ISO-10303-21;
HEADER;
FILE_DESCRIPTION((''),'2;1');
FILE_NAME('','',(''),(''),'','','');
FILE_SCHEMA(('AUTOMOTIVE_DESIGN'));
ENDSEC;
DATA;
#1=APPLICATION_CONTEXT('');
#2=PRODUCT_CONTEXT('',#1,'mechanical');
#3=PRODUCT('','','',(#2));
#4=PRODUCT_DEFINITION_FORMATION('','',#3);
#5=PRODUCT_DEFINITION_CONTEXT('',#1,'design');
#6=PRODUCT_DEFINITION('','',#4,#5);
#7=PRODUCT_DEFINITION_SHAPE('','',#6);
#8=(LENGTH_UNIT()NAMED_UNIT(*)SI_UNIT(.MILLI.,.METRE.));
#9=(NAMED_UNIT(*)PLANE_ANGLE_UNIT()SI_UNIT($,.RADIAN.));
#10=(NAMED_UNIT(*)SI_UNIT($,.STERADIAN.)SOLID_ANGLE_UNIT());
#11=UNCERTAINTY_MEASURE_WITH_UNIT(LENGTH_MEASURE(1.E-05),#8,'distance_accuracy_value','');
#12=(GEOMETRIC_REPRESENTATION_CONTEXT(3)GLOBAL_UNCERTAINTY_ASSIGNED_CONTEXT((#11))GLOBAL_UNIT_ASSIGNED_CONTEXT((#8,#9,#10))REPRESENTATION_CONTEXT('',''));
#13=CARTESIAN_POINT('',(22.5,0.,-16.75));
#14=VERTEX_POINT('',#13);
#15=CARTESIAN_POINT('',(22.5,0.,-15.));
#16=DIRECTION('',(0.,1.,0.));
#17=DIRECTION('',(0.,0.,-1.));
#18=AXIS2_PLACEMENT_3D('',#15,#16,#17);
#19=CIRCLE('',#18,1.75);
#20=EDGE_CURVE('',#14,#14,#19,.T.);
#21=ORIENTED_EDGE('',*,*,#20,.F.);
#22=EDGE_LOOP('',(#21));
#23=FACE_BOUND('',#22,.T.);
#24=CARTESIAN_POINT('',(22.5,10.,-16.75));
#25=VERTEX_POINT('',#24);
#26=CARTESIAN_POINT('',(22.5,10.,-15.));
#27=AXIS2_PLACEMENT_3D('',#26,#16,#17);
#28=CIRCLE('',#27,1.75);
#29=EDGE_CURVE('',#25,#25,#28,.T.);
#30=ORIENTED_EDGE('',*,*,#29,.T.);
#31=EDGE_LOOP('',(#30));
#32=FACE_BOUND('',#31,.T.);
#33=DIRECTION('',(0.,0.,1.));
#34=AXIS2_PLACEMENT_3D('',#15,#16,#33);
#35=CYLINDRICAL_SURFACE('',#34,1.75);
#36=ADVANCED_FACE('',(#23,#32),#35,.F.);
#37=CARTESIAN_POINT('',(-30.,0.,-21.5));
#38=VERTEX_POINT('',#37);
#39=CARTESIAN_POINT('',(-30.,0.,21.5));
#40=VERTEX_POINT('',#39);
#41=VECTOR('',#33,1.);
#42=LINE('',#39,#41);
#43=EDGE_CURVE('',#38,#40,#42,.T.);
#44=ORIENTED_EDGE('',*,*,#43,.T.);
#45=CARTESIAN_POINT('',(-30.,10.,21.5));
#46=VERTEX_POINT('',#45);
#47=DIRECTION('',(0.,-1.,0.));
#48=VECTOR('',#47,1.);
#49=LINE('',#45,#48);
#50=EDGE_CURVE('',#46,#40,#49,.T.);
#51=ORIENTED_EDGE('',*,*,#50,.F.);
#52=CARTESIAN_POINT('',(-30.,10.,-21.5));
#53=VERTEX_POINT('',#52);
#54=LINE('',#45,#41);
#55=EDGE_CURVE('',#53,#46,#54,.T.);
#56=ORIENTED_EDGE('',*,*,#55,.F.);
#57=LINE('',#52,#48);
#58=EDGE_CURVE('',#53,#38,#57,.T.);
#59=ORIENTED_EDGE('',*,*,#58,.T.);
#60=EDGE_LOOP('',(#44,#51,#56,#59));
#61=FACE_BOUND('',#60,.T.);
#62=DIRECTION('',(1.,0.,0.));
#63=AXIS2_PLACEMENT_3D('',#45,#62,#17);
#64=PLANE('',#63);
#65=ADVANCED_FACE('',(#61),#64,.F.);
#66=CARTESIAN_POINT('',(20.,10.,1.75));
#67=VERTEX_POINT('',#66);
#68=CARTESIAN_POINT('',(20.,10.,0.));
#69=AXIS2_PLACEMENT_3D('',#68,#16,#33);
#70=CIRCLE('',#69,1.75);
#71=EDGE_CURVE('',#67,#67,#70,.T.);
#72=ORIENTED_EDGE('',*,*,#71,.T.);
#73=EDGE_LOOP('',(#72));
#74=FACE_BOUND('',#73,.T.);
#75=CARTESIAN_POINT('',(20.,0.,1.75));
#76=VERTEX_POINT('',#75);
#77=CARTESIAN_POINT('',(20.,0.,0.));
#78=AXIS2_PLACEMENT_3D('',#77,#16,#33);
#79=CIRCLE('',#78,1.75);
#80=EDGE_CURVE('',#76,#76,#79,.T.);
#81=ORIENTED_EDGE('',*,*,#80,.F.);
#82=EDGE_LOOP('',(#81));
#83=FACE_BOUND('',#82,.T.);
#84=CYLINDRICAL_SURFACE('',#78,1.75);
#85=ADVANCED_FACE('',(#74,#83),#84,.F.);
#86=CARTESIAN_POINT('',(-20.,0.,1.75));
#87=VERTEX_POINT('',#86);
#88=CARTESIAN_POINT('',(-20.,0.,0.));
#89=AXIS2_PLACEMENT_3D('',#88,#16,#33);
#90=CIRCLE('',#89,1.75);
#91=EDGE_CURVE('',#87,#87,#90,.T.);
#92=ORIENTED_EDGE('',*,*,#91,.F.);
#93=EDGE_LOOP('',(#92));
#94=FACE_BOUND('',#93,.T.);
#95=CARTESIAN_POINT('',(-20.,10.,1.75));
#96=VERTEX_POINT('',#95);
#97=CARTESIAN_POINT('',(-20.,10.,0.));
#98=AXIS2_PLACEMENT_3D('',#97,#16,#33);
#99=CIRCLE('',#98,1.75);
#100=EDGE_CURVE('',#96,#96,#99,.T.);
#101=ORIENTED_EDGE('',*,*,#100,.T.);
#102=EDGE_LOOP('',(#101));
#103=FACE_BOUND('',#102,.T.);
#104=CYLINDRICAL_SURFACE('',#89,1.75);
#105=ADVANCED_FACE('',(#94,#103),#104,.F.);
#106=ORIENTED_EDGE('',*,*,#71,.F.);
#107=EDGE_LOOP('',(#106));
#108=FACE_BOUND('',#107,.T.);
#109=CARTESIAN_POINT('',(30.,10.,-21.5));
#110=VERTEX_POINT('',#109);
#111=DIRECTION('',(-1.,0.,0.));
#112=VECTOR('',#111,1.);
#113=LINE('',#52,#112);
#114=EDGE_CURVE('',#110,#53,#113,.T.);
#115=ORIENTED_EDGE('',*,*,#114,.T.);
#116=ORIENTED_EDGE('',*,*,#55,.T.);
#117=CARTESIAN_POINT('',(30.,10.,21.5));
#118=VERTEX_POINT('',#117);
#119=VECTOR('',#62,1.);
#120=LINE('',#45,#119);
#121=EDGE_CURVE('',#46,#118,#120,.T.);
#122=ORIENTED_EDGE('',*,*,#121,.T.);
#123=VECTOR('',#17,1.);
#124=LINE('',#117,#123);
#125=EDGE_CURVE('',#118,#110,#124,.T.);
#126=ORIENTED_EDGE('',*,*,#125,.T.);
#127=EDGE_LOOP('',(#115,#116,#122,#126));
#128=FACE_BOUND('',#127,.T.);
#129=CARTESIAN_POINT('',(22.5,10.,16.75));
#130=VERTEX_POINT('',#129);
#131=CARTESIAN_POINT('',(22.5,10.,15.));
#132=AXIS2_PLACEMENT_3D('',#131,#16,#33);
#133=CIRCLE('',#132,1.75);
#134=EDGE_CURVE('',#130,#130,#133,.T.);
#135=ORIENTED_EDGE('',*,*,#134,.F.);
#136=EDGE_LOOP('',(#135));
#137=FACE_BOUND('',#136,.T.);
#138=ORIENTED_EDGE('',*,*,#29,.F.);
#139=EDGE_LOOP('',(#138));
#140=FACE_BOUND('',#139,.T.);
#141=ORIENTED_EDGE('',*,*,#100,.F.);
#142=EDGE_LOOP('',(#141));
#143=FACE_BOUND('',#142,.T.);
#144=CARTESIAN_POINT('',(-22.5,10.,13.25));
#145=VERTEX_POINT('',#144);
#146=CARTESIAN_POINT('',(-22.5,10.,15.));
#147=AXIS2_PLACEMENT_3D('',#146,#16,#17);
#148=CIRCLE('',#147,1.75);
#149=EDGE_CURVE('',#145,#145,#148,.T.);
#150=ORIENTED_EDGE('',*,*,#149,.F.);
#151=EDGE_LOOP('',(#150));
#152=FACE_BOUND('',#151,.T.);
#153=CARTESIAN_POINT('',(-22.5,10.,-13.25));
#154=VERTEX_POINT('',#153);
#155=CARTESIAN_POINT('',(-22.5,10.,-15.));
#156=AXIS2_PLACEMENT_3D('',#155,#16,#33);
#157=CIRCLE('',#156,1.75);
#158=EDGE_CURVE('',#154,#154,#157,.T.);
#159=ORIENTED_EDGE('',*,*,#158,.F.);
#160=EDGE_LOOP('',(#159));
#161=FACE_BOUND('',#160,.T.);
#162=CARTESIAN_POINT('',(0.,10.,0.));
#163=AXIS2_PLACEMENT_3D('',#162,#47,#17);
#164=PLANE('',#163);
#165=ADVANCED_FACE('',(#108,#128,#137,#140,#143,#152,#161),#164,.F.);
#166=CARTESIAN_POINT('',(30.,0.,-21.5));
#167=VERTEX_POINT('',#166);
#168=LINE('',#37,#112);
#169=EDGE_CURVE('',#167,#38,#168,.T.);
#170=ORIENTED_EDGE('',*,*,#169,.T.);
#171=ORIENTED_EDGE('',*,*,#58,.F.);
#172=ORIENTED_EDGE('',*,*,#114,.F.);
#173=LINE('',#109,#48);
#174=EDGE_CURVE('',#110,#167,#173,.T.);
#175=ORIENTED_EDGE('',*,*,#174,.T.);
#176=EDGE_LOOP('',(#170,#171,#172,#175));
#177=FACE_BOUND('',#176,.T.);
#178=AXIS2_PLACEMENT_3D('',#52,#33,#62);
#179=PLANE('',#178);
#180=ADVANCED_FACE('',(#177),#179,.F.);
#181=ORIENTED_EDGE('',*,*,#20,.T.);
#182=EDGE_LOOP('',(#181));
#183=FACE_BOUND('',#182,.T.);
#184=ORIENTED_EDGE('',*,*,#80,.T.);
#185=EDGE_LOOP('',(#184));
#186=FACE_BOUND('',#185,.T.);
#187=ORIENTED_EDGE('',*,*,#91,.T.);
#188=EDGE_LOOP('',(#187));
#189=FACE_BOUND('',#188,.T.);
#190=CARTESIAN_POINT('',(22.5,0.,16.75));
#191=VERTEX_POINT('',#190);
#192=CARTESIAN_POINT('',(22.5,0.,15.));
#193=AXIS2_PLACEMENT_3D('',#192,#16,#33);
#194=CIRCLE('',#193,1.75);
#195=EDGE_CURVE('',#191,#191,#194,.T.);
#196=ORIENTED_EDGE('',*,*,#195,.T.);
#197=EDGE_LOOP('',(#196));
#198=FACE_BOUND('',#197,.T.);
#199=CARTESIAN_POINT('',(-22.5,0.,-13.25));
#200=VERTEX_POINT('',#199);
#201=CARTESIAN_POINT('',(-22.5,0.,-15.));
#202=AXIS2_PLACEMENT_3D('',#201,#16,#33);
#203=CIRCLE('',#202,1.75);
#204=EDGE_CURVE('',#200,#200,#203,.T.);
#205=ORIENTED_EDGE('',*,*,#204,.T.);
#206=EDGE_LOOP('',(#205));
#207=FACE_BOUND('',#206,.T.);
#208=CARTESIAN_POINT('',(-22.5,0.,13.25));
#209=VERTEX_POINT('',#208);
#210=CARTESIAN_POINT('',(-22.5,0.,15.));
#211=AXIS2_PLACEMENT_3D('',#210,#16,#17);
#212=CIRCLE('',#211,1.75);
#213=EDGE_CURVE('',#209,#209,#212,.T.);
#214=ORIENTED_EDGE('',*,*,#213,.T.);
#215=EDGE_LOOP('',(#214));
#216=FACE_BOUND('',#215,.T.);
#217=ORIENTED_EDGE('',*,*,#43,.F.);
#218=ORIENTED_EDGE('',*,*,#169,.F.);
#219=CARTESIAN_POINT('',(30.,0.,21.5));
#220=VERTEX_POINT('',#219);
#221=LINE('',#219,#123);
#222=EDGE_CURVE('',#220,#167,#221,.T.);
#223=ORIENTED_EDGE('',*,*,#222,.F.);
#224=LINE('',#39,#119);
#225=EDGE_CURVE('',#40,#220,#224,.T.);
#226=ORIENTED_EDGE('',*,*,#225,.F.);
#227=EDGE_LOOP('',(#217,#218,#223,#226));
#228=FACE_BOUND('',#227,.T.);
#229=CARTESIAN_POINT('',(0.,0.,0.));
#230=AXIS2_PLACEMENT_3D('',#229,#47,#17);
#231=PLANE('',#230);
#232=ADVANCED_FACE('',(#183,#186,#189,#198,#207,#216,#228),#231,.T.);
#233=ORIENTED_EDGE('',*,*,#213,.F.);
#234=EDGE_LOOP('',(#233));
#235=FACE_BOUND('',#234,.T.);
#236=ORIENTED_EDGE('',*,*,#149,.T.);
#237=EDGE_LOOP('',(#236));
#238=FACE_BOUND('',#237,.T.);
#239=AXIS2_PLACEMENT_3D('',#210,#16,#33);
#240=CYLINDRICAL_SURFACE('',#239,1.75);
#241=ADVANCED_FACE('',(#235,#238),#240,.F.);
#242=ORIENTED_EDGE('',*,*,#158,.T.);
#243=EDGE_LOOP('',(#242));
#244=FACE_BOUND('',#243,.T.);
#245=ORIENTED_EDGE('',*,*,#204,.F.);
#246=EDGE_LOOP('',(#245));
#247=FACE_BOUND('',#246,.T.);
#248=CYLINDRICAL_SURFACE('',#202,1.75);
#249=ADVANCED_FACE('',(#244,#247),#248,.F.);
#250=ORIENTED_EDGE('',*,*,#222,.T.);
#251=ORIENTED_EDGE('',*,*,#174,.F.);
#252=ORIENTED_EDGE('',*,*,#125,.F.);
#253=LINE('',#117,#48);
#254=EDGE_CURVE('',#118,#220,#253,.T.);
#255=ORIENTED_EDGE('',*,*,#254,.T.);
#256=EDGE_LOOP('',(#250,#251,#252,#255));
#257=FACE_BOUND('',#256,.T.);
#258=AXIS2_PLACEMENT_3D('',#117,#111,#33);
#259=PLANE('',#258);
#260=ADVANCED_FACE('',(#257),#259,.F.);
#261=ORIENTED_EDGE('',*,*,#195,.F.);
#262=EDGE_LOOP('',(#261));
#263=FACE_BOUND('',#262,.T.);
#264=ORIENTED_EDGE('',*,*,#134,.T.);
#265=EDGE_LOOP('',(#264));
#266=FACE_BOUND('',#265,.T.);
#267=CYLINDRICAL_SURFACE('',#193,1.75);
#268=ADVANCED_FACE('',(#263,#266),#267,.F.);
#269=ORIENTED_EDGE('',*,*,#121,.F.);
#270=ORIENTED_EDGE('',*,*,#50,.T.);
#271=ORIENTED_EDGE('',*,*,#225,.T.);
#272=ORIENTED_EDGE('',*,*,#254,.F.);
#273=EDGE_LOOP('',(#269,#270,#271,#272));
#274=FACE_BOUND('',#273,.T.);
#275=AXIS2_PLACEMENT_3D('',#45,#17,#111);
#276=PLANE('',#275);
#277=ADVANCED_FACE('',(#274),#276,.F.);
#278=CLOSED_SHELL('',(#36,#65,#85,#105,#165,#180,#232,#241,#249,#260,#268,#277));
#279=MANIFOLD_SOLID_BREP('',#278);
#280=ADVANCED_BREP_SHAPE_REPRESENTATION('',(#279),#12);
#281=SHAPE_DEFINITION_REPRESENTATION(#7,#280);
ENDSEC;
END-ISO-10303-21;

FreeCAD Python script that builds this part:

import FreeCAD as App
import Part
import Sketcher
Q = App.Units.Quantity

doc = App.newDocument("Part")
body = doc.addObject("PartDesign::Body", "Body")

sketch1 = doc.addObject("Sketcher::SketchObject", "Sketch")
body.addObject(sketch1)
sketch1.AttachmentSupport = (doc.XZ_Plane, [""])
sketch1.MapMode = "FlatFace"
sketch1.addGeometry([
    Part.LineSegment(App.Vector(-30, -21.5, 0), App.Vector(-30, 21.5, 0)),
    Part.LineSegment(App.Vector(-30, 21.5, 0), App.Vector(30, 21.5, 0)),
    Part.LineSegment(App.Vector(30, 21.5, 0), App.Vector(30, -21.5, 0)),
    Part.LineSegment(App.Vector(30, -21.5, 0), App.Vector(-30, -21.5, 0)),
], False)
sketch1.addConstraint([
    Sketcher.Constraint("Coincident", 0, 2, 1, 1),
    Sketcher.Constraint("Coincident", 1, 2, 2, 1),
    Sketcher.Constraint("Coincident", 2, 2, 3, 1),
    Sketcher.Constraint("Coincident", 3, 2, 0, 1),
    Sketcher.Constraint("Vertical", 0),
    Sketcher.Constraint("Horizontal", 1),
    Sketcher.Constraint("Vertical", 2),
    Sketcher.Constraint("Horizontal", 3),
    Sketcher.Constraint("Symmetric", 0, 2, 2, 2, -1, 1),
    Sketcher.Constraint("DistanceX", 1, 1, 1, 2, Q("60 mm")),
    Sketcher.Constraint("DistanceY", 0, 1, 0, 2, Q("43 mm")),
])
pad1 = doc.addObject("PartDesign::Pad", "Pad")
body.addObject(pad1)
pad1.Profile = sketch1
pad1.Length = 10
pad1.Reversed = True

sketch2 = doc.addObject("Sketcher::SketchObject", "Sketch001")
body.addObject(sketch2)
sketch2.AttachmentSupport = (doc.XZ_Plane, [""])
sketch2.MapMode = "FlatFace"
sketch2.AttachmentOffset = App.Placement(App.Vector(0, 0, -10), App.Rotation())
sketch2.addGeometry([
    Part.Circle(App.Vector(-22.5, -15, 0), App.Vector(0, 0, 1), 1.75),
    Part.Circle(App.Vector(22.5, -15, 0), App.Vector(0, 0, 1), 1.75),
    Part.Circle(App.Vector(22.5, 15, 0), App.Vector(0, 0, 1), 1.75),
    Part.Circle(App.Vector(-22.5, 15, 0), App.Vector(0, 0, 1), 1.75),
], False)
sketch2.addConstraint([
    Sketcher.Constraint("Equal", 0, 1),
    Sketcher.Constraint("Equal", 1, 2),
    Sketcher.Constraint("Equal", 2, 3),
    Sketcher.Constraint("Symmetric", 0, 3, 2, 3, -1, 1),
    Sketcher.Constraint("Symmetric", 1, 3, 3, 3, -1, 1),
    Sketcher.Constraint("Symmetric", 0, 3, 1, 3, -2),
    Sketcher.Constraint("Diameter", 0, Q("3.5 mm")),
    Sketcher.Constraint("DistanceY", 0, 3, -1, 1, Q("15 mm")),
    Sketcher.Constraint("DistanceX", 0, 3, 1, 3, Q("45 mm")),
])
pocket1 = doc.addObject("PartDesign::Pocket", "Pocket")
body.addObject(pocket1)
pocket1.Profile = sketch2
pocket1.Type = "ThroughAll"
pocket1.Reversed = True

sketch3 = doc.addObject("Sketcher::SketchObject", "Sketch002")
body.addObject(sketch3)
sketch3.AttachmentSupport = (doc.XZ_Plane, [""])
sketch3.MapMode = "FlatFace"
sketch3.AttachmentOffset = App.Placement(App.Vector(0, 0, -10), App.Rotation())
sketch3.addGeometry([
    Part.Circle(App.Vector(-20, 0, 0), App.Vector(0, 0, 1), 1.75),
    Part.Circle(App.Vector(20, 0, 0), App.Vector(0, 0, 1), 1.75),
], False)
sketch3.addConstraint([
    Sketcher.Constraint("Equal", 0, 1),
    Sketcher.Constraint("Symmetric", 0, 3, 1, 3, -1, 1),
    Sketcher.Constraint("PointOnObject", 0, 3, -1),
    Sketcher.Constraint("Diameter", 0, Q("3.5 mm")),
    Sketcher.Constraint("DistanceX", 0, 3, -1, 1, Q("20 mm")),
])
pocket2 = doc.addObject("PartDesign::Pocket", "Pocket001")
body.addObject(pocket2)
pocket2.Profile = sketch3
pocket2.Type = "ThroughAll"
pocket2.Reversed = True

doc.recompute()
